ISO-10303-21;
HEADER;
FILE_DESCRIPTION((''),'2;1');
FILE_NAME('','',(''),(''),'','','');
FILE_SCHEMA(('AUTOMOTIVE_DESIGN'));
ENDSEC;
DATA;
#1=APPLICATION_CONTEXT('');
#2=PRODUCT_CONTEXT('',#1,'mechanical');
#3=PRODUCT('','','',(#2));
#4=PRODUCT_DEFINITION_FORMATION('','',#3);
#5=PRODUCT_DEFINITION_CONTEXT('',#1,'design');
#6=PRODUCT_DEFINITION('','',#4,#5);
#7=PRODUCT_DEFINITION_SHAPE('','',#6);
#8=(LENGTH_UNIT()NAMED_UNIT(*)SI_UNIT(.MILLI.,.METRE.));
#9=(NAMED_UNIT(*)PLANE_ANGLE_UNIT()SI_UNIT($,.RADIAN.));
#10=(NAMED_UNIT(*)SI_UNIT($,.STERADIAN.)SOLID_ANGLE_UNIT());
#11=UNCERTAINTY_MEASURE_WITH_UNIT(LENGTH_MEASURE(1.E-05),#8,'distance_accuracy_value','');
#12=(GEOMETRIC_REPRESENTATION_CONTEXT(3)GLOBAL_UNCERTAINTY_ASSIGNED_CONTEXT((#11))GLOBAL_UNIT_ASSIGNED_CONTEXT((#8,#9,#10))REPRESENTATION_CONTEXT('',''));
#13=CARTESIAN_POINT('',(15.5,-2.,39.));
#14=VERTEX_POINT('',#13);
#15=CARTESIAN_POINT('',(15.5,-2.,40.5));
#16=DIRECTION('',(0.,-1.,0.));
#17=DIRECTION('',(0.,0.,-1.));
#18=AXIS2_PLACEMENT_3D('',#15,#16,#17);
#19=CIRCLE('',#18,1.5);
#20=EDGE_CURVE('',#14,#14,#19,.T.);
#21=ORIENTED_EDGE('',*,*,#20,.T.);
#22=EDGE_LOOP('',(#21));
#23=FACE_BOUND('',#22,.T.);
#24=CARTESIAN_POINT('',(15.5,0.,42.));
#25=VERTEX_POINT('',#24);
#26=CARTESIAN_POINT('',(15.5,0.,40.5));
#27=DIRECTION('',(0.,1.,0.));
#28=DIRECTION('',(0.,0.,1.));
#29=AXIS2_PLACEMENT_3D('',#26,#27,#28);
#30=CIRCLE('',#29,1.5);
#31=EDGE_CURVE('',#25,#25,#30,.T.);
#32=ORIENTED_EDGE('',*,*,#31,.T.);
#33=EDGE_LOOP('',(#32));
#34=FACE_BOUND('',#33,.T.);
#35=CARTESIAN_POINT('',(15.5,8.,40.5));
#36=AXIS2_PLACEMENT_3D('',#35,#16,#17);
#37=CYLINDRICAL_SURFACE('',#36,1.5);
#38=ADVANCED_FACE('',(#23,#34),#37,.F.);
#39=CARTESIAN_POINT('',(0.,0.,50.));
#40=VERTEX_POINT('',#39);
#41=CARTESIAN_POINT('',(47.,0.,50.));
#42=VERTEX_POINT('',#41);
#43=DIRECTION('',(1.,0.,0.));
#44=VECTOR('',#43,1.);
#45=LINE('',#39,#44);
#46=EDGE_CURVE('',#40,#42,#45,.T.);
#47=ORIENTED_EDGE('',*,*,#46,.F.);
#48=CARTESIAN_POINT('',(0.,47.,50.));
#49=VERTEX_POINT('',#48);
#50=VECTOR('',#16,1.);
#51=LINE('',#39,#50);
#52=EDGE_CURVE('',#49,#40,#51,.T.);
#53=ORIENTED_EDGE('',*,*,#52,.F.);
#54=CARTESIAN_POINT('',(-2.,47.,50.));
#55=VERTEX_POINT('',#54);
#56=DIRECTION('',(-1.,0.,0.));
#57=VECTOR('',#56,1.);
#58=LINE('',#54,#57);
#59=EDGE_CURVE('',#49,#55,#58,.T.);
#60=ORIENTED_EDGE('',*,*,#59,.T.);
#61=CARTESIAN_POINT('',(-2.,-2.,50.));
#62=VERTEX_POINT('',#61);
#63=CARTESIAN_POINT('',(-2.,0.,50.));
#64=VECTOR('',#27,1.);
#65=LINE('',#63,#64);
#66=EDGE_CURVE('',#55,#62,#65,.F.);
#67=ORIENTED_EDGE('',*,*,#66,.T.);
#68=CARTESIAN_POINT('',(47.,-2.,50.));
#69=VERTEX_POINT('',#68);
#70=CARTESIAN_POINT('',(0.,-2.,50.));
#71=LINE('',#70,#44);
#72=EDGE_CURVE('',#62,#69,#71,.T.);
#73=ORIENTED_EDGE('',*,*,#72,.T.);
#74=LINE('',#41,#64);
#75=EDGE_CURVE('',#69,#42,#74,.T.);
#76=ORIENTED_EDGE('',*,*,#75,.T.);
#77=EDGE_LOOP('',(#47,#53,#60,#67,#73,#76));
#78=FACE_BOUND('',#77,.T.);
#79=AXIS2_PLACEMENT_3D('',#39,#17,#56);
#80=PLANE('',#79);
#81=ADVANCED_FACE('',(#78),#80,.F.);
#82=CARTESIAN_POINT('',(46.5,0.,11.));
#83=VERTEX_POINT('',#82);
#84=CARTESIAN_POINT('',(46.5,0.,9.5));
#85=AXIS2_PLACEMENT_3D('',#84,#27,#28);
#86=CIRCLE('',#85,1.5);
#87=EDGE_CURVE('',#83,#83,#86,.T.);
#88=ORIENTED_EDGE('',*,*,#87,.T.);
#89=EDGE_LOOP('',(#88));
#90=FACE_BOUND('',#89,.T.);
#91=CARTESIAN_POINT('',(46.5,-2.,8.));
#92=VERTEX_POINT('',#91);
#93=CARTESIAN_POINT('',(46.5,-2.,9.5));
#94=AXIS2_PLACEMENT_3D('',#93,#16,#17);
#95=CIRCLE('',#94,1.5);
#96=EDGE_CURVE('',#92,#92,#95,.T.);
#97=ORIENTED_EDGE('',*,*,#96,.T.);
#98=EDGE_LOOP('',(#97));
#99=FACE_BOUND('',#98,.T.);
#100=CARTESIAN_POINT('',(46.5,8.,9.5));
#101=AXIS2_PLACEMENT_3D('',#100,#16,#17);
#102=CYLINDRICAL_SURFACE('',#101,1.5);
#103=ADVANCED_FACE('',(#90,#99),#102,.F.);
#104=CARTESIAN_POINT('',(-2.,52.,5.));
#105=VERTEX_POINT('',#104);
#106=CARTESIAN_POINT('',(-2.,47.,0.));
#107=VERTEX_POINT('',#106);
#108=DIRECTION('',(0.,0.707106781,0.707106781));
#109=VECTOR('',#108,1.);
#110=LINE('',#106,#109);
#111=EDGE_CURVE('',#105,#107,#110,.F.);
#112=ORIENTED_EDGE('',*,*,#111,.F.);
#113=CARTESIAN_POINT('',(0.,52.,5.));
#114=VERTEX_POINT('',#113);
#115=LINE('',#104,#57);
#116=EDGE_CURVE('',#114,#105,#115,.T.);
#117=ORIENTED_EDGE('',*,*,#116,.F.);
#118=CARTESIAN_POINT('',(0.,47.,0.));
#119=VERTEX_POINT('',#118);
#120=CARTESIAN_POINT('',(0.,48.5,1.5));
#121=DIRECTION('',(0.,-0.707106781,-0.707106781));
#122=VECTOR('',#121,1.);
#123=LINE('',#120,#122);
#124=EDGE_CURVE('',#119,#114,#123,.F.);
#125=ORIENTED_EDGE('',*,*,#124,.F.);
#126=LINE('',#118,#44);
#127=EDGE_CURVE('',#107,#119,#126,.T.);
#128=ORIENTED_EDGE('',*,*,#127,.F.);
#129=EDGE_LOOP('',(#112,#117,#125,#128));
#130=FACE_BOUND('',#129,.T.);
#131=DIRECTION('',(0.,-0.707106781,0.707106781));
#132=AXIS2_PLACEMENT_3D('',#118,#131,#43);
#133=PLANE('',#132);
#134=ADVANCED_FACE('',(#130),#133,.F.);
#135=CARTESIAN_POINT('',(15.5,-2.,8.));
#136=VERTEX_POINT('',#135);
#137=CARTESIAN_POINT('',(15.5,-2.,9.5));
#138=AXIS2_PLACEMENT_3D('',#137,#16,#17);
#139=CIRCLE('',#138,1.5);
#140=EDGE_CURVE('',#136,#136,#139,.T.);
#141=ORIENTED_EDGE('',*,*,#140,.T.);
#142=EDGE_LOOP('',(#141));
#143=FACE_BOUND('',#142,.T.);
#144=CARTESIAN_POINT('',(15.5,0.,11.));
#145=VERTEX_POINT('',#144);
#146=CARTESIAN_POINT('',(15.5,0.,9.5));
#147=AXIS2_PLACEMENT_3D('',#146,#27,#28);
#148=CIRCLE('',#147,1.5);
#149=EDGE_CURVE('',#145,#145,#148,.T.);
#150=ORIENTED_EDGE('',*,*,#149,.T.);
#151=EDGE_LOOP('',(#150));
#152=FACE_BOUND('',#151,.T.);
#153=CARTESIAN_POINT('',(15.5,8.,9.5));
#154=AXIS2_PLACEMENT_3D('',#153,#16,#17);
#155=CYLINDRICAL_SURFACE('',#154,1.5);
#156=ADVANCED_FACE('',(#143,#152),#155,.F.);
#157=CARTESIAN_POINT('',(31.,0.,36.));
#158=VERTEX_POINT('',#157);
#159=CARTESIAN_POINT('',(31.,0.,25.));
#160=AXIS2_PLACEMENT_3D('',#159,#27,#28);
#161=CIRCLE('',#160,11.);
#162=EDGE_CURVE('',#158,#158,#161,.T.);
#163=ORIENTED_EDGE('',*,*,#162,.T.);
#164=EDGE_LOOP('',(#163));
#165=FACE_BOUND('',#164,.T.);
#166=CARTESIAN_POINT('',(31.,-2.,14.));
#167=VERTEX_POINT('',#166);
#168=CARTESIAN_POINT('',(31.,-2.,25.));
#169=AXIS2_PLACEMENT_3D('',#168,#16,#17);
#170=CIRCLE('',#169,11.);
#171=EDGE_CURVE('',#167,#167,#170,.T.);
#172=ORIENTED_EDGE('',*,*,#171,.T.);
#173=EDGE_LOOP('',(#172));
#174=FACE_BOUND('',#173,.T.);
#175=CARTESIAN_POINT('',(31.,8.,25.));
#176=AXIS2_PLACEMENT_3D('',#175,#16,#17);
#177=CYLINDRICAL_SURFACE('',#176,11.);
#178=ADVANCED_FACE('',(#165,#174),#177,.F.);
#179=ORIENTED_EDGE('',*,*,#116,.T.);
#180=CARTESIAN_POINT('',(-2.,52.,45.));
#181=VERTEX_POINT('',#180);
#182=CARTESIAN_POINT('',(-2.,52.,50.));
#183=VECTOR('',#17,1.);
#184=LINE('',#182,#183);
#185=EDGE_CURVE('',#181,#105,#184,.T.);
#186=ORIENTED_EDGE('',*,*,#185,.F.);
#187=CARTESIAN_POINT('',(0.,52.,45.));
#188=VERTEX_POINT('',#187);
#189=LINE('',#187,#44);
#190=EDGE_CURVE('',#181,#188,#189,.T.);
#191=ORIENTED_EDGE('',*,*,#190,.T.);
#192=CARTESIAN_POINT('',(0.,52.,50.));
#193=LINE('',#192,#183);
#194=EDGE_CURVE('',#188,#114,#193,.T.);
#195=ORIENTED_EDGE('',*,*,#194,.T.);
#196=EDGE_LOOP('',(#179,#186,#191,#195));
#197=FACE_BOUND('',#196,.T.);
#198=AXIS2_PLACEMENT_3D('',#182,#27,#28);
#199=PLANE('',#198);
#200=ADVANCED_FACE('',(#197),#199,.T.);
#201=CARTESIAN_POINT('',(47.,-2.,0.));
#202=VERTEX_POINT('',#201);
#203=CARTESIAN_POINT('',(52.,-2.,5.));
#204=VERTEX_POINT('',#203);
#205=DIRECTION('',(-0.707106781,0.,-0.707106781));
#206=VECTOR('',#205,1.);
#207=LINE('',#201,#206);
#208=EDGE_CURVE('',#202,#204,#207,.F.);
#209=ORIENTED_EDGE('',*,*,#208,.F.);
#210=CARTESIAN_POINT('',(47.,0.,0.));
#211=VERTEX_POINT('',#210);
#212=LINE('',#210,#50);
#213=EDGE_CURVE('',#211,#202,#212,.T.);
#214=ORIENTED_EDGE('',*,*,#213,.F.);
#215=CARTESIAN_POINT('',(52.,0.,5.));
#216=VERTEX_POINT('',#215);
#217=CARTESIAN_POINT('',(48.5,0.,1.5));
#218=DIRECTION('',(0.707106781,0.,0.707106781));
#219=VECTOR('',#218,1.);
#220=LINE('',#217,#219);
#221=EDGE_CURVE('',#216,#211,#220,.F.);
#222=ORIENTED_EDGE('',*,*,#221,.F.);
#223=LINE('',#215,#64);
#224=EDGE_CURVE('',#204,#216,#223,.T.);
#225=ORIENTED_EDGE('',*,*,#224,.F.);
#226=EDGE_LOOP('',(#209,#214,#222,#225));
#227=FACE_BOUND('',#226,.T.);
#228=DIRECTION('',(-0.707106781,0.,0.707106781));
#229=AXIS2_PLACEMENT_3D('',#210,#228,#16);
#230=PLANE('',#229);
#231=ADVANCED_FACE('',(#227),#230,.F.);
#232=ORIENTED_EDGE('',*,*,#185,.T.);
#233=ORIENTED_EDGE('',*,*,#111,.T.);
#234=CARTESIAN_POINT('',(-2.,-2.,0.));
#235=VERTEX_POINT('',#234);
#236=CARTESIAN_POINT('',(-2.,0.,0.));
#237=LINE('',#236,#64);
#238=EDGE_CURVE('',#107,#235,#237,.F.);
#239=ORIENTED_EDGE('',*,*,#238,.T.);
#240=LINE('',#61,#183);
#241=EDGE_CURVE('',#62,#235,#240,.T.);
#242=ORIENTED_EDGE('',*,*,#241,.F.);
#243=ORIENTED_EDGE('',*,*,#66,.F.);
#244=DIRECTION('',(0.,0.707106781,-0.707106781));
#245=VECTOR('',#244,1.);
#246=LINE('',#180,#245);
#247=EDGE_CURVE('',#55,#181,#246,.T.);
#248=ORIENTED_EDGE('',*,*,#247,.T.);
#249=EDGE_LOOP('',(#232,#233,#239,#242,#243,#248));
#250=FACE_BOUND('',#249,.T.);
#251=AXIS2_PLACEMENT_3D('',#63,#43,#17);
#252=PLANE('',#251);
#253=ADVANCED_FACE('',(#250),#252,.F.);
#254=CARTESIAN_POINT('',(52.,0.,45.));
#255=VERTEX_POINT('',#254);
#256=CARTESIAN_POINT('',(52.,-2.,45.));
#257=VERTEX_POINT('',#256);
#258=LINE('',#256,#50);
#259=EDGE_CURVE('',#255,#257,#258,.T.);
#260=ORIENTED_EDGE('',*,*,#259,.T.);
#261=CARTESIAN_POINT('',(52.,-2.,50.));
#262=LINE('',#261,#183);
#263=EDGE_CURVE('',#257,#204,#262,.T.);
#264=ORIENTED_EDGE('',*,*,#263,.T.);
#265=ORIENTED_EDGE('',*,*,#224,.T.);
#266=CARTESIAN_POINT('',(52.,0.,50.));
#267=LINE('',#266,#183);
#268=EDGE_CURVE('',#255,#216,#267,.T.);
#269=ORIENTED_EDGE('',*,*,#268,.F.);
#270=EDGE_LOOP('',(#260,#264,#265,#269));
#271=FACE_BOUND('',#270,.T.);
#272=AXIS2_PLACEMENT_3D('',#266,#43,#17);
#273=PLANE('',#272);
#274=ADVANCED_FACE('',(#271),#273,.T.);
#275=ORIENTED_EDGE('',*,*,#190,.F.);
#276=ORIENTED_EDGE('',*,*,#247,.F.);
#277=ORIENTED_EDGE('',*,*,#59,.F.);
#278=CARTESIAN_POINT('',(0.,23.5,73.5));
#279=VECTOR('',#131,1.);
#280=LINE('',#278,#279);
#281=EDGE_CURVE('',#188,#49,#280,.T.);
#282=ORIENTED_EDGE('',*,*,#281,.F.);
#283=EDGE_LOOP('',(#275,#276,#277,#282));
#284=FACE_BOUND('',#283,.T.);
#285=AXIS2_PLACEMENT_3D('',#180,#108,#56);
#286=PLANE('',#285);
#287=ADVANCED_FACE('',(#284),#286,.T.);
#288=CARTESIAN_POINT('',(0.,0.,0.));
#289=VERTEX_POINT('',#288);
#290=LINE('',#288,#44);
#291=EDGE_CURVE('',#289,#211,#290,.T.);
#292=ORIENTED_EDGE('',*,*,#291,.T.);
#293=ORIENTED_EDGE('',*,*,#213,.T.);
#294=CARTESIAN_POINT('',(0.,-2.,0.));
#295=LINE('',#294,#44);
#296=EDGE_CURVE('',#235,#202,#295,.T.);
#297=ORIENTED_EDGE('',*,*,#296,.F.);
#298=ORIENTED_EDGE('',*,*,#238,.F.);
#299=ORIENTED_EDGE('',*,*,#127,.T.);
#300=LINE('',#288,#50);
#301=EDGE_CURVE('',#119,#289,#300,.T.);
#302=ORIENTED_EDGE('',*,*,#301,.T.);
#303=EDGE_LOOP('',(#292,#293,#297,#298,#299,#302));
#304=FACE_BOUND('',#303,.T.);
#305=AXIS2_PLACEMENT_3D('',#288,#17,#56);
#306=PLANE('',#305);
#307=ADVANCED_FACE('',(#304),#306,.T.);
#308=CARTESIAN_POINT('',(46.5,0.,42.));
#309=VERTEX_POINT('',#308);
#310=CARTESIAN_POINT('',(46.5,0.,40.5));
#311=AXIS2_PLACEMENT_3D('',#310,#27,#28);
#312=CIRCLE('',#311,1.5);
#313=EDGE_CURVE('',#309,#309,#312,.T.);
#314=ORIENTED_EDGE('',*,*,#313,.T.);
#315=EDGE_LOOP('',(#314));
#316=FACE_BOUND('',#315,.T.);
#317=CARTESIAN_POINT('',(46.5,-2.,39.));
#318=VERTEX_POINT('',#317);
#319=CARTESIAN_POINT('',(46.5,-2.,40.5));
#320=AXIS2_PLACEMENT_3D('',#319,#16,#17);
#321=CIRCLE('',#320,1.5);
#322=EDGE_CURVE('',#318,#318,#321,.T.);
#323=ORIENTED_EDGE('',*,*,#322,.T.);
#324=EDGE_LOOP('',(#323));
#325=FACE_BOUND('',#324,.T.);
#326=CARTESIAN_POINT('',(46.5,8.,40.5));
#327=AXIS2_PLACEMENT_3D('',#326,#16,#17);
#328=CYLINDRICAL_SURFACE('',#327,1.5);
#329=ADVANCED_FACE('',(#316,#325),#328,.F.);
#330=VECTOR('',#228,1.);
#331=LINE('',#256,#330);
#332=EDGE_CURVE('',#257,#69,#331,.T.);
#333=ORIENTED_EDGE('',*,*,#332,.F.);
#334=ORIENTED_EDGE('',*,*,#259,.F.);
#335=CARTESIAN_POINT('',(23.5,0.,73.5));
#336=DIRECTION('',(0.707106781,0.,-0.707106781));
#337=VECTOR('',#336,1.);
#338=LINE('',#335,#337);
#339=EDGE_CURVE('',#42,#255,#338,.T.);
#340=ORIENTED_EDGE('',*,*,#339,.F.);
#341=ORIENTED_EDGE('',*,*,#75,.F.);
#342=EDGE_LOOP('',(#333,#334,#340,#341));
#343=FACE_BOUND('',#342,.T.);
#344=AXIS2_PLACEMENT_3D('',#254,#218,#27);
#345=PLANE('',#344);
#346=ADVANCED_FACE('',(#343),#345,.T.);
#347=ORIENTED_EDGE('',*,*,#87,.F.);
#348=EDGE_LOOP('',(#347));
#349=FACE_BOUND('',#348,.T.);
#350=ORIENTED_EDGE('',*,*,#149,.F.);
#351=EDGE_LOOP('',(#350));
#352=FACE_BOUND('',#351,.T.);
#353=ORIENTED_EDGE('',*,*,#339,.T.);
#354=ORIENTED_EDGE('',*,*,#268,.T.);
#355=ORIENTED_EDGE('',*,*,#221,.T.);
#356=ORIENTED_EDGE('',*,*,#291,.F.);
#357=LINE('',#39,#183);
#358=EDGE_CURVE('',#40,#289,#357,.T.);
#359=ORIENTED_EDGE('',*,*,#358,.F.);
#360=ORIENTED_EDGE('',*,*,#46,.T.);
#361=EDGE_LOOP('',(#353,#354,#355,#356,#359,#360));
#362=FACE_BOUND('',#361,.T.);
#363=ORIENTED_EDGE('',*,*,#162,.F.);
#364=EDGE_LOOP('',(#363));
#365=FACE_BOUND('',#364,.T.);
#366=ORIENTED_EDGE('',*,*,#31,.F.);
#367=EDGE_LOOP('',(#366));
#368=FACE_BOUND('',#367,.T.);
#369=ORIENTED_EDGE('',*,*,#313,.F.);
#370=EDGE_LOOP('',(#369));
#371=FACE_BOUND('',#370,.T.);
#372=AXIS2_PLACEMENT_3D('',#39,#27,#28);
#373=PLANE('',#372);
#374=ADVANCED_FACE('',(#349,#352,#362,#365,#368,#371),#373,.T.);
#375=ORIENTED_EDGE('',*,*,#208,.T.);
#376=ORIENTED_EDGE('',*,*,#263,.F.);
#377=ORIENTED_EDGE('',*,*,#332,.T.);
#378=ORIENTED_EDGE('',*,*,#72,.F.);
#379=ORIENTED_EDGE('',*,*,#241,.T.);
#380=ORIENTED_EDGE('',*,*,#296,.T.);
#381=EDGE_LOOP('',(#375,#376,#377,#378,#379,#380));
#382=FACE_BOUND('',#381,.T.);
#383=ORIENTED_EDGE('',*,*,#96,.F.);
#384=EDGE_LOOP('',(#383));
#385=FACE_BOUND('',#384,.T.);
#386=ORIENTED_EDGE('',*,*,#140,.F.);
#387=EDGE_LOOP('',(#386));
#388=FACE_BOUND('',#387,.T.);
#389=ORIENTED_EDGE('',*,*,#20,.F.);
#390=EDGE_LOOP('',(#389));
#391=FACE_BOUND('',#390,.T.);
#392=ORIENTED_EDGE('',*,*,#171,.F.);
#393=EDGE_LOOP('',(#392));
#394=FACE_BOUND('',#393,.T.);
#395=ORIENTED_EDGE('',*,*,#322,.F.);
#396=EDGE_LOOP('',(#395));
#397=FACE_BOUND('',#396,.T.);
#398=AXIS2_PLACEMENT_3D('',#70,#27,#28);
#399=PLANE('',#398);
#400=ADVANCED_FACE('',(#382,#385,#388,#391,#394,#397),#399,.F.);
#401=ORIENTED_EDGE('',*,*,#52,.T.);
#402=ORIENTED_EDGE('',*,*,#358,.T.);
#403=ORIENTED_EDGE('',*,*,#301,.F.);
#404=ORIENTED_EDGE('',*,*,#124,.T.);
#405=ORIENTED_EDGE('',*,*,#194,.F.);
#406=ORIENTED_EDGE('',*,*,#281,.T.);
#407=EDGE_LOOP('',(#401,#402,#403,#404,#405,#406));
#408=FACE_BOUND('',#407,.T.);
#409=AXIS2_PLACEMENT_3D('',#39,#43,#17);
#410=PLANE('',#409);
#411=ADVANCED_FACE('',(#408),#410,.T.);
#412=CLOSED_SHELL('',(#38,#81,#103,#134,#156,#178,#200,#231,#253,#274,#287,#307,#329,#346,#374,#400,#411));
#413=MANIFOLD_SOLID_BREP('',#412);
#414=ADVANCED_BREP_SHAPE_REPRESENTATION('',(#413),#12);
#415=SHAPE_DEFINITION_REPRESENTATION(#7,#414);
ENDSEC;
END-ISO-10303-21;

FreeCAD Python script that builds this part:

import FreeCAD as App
import Part
import Sketcher

V = App.Vector


def edges_at(feature, points):
    """Names of the edges that pass closest to the given points."""
    edges = feature.Shape.Edges
    near = lambda p: min(range(len(edges)), key=lambda i: edges[i].distToShape(Part.Vertex(*p))[0])
    return sorted({f"Edge{near(p) + 1}" for p in points})


def add_polygon(sketch, points):
    """Adds a closed chain of lines whose ends are joined by coincident constraints."""
    first, n = sketch.GeometryCount, len(points)
    for a, b in zip(points, points[1:] + points[:1]):
        sketch.addGeometry(Part.LineSegment(App.Vector(*a, 0), App.Vector(*b, 0)), False)
    for i in range(n):
        sketch.addConstraint(Sketcher.Constraint("Coincident", first + i, 2, first + (i + 1) % n, 1))

doc = App.newDocument("Part")
params = doc.addObject("Spreadsheet::Sheet", "Params")
for row, (alias, value) in enumerate([
    ("sketch1_width", "52 mm"),
    ("sketch1_width2", "2 mm"),
    ("pad1_length", "50 mm"),
    ("chamfer_size", "5 mm"),
    ("sketch2_diameter", "22 mm"),
    ("sketch2_diameter2", "3 mm"),
    ("pocket1_length", "10 mm"),
], start=1):
    params.set(f"A{row}", alias)
    params.set(f"B{row}", "=" + value)
    params.setAlias(f"B{row}", alias)

body = doc.addObject("PartDesign::Body", "Body")

# Sketch on XY plane
sketch1 = body.newObject("Sketcher::SketchObject", "Sketch")
sketch1.AttachmentSupport = (doc.getObject("XY_Plane"), [""])
sketch1.MapMode = "FlatFace"
add_polygon(sketch1, [(52, 0), (0, 0), (0, 52), (-2, 52), (-2, -2), (52, -2)])  # lines 0-5
sketch1.addConstraint(Sketcher.Constraint("Horizontal", 0))
sketch1.addConstraint(Sketcher.Constraint("Vertical", 1))
sketch1.addConstraint(Sketcher.Constraint("Horizontal", 2))
sketch1.addConstraint(Sketcher.Constraint("Vertical", 3))
sketch1.addConstraint(Sketcher.Constraint("Horizontal", 4))
sketch1.addConstraint(Sketcher.Constraint("Vertical", 5))
sketch1.addConstraint(Sketcher.Constraint("Coincident", 0, 2, -1, 1))
sketch1.addConstraint(Sketcher.Constraint("Equal", 0, 1))
sketch1.addConstraint(Sketcher.Constraint("Equal", 4, 3))
sketch1.addConstraint(Sketcher.Constraint("DistanceX", 0, 2, 0, 1, 52.0))
sketch1.addConstraint(Sketcher.Constraint("DistanceX", 2, 2, 2, 1, 2.0))
sketch1.setExpression("Constraints[15]", "Params.sketch1_width")
sketch1.setExpression("Constraints[16]", "Params.sketch1_width2")
pad1 = body.newObject("PartDesign::Pad", "Pad")
pad1.Profile = sketch1
pad1.setExpression("Length", "Params.pad1_length")
doc.recompute()

chamfer = body.newObject("PartDesign::Chamfer", "Chamfer")
chamfer.Base = (pad1, edges_at(pad1, [
    (-1, 52, 50),
    (-1, 52, 0),
    (52, -1, 0),
    (52, -1, 50),
]))
chamfer.setExpression("Size", "Params.chamfer_size")

# Sketch on XZ plane
sketch2 = body.newObject("Sketcher::SketchObject", "Sketch001")
sketch2.AttachmentSupport = (doc.getObject("XZ_Plane"), [""])
sketch2.MapMode = "FlatFace"
sketch2.AttachmentOffset = App.Placement(V(0, 0, 2), App.Rotation())
sketch2.addGeometry(Part.Circle(V(31, 25, 0), V(0, 0, 1), 11), False)
sketch2.addGeometry(Part.Circle(V(15.5, 40.5, 0), V(0, 0, 1), 1.5), False)
sketch2.addGeometry(Part.Circle(V(46.5, 40.5, 0), V(0, 0, 1), 1.5), False)
sketch2.addGeometry(Part.Circle(V(46.5, 9.5, 0), V(0, 0, 1), 1.5), False)
sketch2.addGeometry(Part.Circle(V(15.5, 9.5, 0), V(0, 0, 1), 1.5), False)
sketch2.addConstraint(Sketcher.Constraint("Equal", 1, 2))
sketch2.addConstraint(Sketcher.Constraint("Equal", 2, 3))
sketch2.addConstraint(Sketcher.Constraint("Equal", 3, 4))
sketch2.addConstraint(Sketcher.Constraint("Horizontal", 1, 3, 2, 3))
sketch2.addConstraint(Sketcher.Constraint("Horizontal", 3, 3, 4, 3))
sketch2.addConstraint(Sketcher.Constraint("Vertical", 2, 3, 3, 3))
sketch2.addConstraint(Sketcher.Constraint("Vertical", 1, 3, 4, 3))
sketch2.addConstraint(Sketcher.Constraint("Diameter", 0, 22.0))
sketch2.addConstraint(Sketcher.Constraint("Diameter", 1, 3.0))
sketch2.addConstraint(Sketcher.Constraint("DistanceX", -1, 1, 0, 3, 31.0))
sketch2.addConstraint(Sketcher.Constraint("DistanceY", -1, 1, 0, 3, 25.0))
sketch2.addConstraint(Sketcher.Constraint("DistanceX", 1, 3, 2, 3, 31.0))
sketch2.addConstraint(Sketcher.Constraint("DistanceY", 3, 3, 2, 3, 31.0))
sketch2.addConstraint(Sketcher.Constraint("DistanceX", -1, 1, 1, 3, 15.5))
sketch2.addConstraint(Sketcher.Constraint("DistanceY", -1, 1, 1, 3, 40.5))
sketch2.setExpression("Constraints[7]", "Params.sketch2_diameter")
sketch2.setExpression("Constraints[8]", "Params.sketch2_diameter2")
pocket1 = body.newObject("PartDesign::Pocket", "Pocket")
pocket1.Profile = sketch2
pocket1.setExpression("Length", "Params.pocket1_length")

doc.recompute()
